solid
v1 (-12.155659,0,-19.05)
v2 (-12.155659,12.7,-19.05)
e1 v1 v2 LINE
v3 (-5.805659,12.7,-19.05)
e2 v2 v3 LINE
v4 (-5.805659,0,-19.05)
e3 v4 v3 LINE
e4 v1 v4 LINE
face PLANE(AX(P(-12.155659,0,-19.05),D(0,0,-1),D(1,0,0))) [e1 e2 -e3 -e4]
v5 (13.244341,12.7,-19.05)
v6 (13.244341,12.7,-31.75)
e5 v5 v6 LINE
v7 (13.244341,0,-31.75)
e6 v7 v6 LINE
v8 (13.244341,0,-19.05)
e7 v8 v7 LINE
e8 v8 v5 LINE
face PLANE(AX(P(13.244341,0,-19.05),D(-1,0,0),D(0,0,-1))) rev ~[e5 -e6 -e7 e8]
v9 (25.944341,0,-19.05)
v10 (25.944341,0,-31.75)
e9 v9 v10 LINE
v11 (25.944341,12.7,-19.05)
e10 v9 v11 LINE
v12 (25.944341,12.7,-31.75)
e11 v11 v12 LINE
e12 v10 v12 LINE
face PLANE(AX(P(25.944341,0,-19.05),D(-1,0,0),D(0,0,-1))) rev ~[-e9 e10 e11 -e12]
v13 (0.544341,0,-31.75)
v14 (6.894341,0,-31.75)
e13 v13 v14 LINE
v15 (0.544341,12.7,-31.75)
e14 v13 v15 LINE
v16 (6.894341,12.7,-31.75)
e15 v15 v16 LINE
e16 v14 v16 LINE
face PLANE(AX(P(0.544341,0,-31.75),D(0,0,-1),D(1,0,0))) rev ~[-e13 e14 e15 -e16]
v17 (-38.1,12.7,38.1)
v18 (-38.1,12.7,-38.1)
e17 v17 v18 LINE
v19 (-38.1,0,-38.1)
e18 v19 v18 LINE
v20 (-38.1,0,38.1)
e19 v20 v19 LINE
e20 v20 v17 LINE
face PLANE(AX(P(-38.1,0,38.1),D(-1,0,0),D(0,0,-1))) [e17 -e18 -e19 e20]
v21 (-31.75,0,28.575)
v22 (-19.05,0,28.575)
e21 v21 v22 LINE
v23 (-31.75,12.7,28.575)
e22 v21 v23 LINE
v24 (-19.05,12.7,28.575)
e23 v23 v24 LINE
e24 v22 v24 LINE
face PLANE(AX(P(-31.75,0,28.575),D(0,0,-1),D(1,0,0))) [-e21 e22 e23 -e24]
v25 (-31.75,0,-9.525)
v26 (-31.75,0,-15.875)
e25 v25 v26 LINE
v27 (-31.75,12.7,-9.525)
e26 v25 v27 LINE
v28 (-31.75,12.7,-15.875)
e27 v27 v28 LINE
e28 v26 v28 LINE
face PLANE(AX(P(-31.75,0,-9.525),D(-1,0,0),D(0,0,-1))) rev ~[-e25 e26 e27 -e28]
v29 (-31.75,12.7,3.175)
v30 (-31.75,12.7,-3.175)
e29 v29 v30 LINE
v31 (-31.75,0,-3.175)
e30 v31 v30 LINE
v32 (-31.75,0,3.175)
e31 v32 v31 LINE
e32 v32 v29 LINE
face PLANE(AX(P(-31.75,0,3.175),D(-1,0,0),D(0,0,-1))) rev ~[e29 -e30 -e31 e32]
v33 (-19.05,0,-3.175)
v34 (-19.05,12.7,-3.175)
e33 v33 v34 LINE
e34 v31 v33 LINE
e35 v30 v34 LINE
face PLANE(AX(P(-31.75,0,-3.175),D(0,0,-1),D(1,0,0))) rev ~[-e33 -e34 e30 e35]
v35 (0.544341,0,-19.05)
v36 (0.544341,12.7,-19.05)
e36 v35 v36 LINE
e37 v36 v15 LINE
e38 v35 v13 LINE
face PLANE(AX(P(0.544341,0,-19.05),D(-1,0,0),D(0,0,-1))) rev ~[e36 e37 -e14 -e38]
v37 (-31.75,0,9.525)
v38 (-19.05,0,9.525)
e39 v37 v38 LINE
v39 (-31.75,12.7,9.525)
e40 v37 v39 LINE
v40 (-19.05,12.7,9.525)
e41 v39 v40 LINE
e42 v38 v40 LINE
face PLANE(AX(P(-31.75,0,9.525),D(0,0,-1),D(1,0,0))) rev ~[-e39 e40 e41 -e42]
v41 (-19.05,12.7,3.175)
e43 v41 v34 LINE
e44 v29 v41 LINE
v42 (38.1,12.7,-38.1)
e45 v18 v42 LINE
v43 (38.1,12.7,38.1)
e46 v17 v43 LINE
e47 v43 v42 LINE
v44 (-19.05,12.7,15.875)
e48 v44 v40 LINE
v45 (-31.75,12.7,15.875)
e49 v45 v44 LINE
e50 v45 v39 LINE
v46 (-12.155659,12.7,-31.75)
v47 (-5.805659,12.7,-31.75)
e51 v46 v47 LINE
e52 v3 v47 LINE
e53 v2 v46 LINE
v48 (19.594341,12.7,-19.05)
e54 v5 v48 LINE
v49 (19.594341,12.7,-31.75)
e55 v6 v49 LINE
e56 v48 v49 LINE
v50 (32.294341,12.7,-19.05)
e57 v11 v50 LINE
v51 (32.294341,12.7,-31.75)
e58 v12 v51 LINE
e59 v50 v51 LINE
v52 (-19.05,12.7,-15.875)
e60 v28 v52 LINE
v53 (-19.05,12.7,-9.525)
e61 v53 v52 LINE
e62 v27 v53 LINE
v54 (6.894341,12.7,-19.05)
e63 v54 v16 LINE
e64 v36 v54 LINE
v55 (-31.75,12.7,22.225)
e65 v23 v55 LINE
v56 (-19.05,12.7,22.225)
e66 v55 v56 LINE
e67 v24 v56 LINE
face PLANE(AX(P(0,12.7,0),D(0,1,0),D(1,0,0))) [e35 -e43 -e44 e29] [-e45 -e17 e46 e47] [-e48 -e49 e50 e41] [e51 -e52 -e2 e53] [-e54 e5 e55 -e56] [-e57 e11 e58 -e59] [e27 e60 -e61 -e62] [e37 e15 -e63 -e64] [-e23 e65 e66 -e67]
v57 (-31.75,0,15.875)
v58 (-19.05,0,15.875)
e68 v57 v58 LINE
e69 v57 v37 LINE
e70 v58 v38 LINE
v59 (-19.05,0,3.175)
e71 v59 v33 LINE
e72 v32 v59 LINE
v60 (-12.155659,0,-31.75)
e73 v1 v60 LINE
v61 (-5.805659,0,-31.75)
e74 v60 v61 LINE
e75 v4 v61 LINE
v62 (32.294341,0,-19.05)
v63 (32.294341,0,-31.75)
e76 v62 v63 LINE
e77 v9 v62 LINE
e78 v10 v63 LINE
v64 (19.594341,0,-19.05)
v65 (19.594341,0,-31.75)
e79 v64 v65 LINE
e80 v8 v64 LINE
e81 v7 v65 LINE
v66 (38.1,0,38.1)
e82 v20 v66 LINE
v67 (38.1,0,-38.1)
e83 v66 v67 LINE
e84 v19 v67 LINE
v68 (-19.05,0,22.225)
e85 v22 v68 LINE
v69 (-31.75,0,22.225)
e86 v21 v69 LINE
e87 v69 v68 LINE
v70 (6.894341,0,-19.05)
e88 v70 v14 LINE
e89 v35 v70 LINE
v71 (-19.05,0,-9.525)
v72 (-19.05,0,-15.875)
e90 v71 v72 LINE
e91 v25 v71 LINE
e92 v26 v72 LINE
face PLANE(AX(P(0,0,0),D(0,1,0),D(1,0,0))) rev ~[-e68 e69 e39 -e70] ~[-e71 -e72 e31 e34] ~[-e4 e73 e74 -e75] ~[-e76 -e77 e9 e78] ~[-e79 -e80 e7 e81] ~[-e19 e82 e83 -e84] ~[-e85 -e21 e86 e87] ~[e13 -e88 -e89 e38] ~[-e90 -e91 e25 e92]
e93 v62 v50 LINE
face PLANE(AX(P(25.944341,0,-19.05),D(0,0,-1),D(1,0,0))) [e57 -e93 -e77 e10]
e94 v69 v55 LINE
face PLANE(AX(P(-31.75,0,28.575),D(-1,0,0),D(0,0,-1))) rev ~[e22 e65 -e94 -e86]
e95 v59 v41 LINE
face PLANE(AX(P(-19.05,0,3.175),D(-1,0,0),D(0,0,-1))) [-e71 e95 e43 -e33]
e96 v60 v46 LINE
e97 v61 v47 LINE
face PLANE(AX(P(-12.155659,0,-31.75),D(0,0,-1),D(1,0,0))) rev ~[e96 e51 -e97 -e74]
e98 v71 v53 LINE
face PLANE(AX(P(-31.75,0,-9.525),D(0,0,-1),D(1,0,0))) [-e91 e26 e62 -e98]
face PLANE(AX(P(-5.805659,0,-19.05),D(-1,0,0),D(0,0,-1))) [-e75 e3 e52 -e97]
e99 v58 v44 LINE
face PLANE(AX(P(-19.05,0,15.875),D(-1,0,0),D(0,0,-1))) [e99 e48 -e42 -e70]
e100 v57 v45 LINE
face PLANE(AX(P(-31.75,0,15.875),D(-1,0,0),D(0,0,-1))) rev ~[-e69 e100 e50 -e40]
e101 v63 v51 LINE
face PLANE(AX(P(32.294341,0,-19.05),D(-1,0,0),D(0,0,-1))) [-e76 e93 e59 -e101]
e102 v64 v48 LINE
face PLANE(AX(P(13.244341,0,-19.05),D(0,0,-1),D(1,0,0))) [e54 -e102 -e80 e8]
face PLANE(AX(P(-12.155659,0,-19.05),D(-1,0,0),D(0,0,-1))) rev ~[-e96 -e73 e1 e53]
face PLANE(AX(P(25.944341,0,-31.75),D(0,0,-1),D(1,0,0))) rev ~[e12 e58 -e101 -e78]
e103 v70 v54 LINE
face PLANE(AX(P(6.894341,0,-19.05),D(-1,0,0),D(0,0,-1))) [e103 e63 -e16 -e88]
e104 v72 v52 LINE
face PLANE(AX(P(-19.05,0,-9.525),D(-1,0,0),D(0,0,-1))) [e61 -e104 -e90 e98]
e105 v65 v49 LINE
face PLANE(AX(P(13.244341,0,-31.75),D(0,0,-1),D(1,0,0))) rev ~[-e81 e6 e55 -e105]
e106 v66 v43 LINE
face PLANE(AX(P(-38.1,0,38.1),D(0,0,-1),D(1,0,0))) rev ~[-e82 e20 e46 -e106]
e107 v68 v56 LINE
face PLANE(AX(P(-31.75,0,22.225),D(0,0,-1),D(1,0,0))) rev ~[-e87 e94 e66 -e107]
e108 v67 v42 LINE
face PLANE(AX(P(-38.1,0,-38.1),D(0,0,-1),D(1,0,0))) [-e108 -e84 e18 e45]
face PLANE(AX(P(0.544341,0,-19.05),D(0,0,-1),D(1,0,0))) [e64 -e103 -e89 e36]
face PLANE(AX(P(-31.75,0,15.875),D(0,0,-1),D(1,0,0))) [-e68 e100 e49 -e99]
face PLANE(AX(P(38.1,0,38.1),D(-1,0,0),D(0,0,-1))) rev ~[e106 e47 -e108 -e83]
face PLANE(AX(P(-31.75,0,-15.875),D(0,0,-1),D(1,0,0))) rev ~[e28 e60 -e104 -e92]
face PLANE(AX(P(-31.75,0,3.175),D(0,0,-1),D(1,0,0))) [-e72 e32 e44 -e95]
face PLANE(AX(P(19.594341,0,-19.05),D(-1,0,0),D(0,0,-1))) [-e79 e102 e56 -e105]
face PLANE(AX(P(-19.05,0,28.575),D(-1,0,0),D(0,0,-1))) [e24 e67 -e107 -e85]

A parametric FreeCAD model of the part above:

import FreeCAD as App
import Part
import Sketcher
Q = App.Units.Quantity

doc = App.newDocument("Part")
body = doc.addObject("PartDesign::Body", "Body")

sketch1 = doc.addObject("Sketcher::SketchObject", "Sketch")
body.addObject(sketch1)
sketch1.AttachmentSupport = (doc.XZ_Plane, [""])
sketch1.MapMode = "FlatFace"
sketch1.addGeometry([
    Part.LineSegment(App.Vector(-38, -38, 0), App.Vector(-38, 38, 0)),
    Part.LineSegment(App.Vector(-38, 38, 0), App.Vector(38, 38, 0)),
    Part.LineSegment(App.Vector(38, 38, 0), App.Vector(38, -38, 0)),
    Part.LineSegment(App.Vector(38, -38, 0), App.Vector(-38, -38, 0)),
    Part.LineSegment(App.Vector(-19, 29, 0), App.Vector(-32, 29, 0)),
    Part.LineSegment(App.Vector(-32, 29, 0), App.Vector(-32, 22, 0)),
    Part.LineSegment(App.Vector(-32, 22, 0), App.Vector(-19, 22, 0)),
    Part.LineSegment(App.Vector(-19, 22, 0), App.Vector(-19, 29, 0)),
    Part.LineSegment(App.Vector(-19, 16, 0), App.Vector(-32, 16, 0)),
    Part.LineSegment(App.Vector(-32, 16, 0), App.Vector(-32, 10, 0)),
    Part.LineSegment(App.Vector(-32, 10, 0), App.Vector(-19, 10, 0)),
    Part.LineSegment(App.Vector(-19, 10, 0), App.Vector(-19, 16, 0)),
    Part.LineSegment(App.Vector(-19, 3, 0), App.Vector(-32, 3, 0)),
    Part.LineSegment(App.Vector(-32, 3, 0), App.Vector(-32, -3, 0)),
    Part.LineSegment(App.Vector(-32, -3, 0), App.Vector(-19, -3, 0)),
    Part.LineSegment(App.Vector(-19, -3, 0), App.Vector(-19, 3, 0)),
    Part.LineSegment(App.Vector(-19, -10, 0), App.Vector(-32, -10, 0)),
    Part.LineSegment(App.Vector(-32, -10, 0), App.Vector(-32, -16, 0)),
    Part.LineSegment(App.Vector(-32, -16, 0), App.Vector(-19, -16, 0)),
    Part.LineSegment(App.Vector(-19, -16, 0), App.Vector(-19, -10, 0)),
    Part.LineSegment(App.Vector(-6, -19, 0), App.Vector(-12, -19, 0)),
    Part.LineSegment(App.Vector(-12, -19, 0), App.Vector(-12, -32, 0)),
    Part.LineSegment(App.Vector(-12, -32, 0), App.Vector(-6, -32, 0)),
    Part.LineSegment(App.Vector(-6, -32, 0), App.Vector(-6, -19, 0)),
    Part.LineSegment(App.Vector(7, -19, 0), App.Vector(1, -19, 0)),
    Part.LineSegment(App.Vector(1, -19, 0), App.Vector(1, -32, 0)),
    Part.LineSegment(App.Vector(1, -32, 0), App.Vector(7, -32, 0)),
    Part.LineSegment(App.Vector(7, -32, 0), App.Vector(7, -19, 0)),
    Part.LineSegment(App.Vector(20, -19, 0), App.Vector(13, -19, 0)),
    Part.LineSegment(App.Vector(13, -19, 0), App.Vector(13, -32, 0)),
    Part.LineSegment(App.Vector(13, -32, 0), App.Vector(20, -32, 0)),
    Part.LineSegment(App.Vector(20, -32, 0), App.Vector(20, -19, 0)),
    Part.LineSegment(App.Vector(32, -19, 0), App.Vector(26, -19, 0)),
    Part.LineSegment(App.Vector(26, -19, 0), App.Vector(26, -32, 0)),
    Part.LineSegment(App.Vector(26, -32, 0), App.Vector(32, -32, 0)),
    Part.LineSegment(App.Vector(32, -32, 0), App.Vector(32, -19, 0)),
], False)
sketch1.addConstraint([
    Sketcher.Constraint("Coincident", 0, 2, 1, 1),
    Sketcher.Constraint("Coincident", 1, 2, 2, 1),
    Sketcher.Constraint("Coincident", 2, 2, 3, 1),
    Sketcher.Constraint("Coincident", 3, 2, 0, 1),
    Sketcher.Constraint("Coincident", 4, 2, 5, 1),
    Sketcher.Constraint("Coincident", 5, 2, 6, 1),
    Sketcher.Constraint("Coincident", 6, 2, 7, 1),
    Sketcher.Constraint("Coincident", 7, 2, 4, 1),
    Sketcher.Constraint("Coincident", 8, 2, 9, 1),
    Sketcher.Constraint("Coincident", 9, 2, 10, 1),
    Sketcher.Constraint("Coincident", 10, 2, 11, 1),
    Sketcher.Constraint("Coincident", 11, 2, 8, 1),
    Sketcher.Constraint("Coincident", 12, 2, 13, 1),
    Sketcher.Constraint("Coincident", 13, 2, 14, 1),
    Sketcher.Constraint("Coincident", 14, 2, 15, 1),
    Sketcher.Constraint("Coincident", 15, 2, 12, 1),
    Sketcher.Constraint("Coincident", 16, 2, 17, 1),
    Sketcher.Constraint("Coincident", 17, 2, 18, 1),
    Sketcher.Constraint("Coincident", 18, 2, 19, 1),
    Sketcher.Constraint("Coincident", 19, 2, 16, 1),
    Sketcher.Constraint("Coincident", 20, 2, 21, 1),
    Sketcher.Constraint("Coincident", 21, 2, 22, 1),
    Sketcher.Constraint("Coincident", 22, 2, 23, 1),
    Sketcher.Constraint("Coincident", 23, 2, 20, 1),
    Sketcher.Constraint("Coincident", 24, 2, 25, 1),
    Sketcher.Constraint("Coincident", 25, 2, 26, 1),
    Sketcher.Constraint("Coincident", 26, 2, 27, 1),
    Sketcher.Constraint("Coincident", 27, 2, 24, 1),
    Sketcher.Constraint("Coincident", 28, 2, 29, 1),
    Sketcher.Constraint("Coincident", 29, 2, 30, 1),
    Sketcher.Constraint("Coincident", 30, 2, 31, 1),
    Sketcher.Constraint("Coincident", 31, 2, 28, 1),
    Sketcher.Constraint("Coincident", 32, 2, 33, 1),
    Sketcher.Constraint("Coincident", 33, 2, 34, 1),
    Sketcher.Constraint("Coincident", 34, 2, 35, 1),
    Sketcher.Constraint("Coincident", 35, 2, 32, 1),
    Sketcher.Constraint("Vertical", 0),
    Sketcher.Constraint("Horizontal", 1),
    Sketcher.Constraint("Vertical", 2),
    Sketcher.Constraint("Horizontal", 3),
    Sketcher.Constraint("Horizontal", 4),
    Sketcher.Constraint("Vertical", 5),
    Sketcher.Constraint("Horizontal", 6),
    Sketcher.Constraint("Vertical", 7),
    Sketcher.Constraint("Horizontal", 8),
    Sketcher.Constraint("Vertical", 9),
    Sketcher.Constraint("Horizontal", 10),
    Sketcher.Constraint("Vertical", 11),
    Sketcher.Constraint("Horizontal", 12),
    Sketcher.Constraint("Vertical", 13),
    Sketcher.Constraint("Horizontal", 14),
    Sketcher.Constraint("Vertical", 15),
    Sketcher.Constraint("Horizontal", 16),
    Sketcher.Constraint("Vertical", 17),
    Sketcher.Constraint("Horizontal", 18),
    Sketcher.Constraint("Vertical", 19),
    Sketcher.Constraint("Horizontal", 20),
    Sketcher.Constraint("Vertical", 21),
    Sketcher.Constraint("Horizontal", 22),
    Sketcher.Constraint("Vertical", 23),
    Sketcher.Constraint("Horizontal", 24),
    Sketcher.Constraint("Vertical", 25),
    Sketcher.Constraint("Horizontal", 26),
    Sketcher.Constraint("Vertical", 27),
    Sketcher.Constraint("Horizontal", 28),
    Sketcher.Constraint("Vertical", 29),
    Sketcher.Constraint("Horizontal", 30),
    Sketcher.Constraint("Vertical", 31),
    Sketcher.Constraint("Horizontal", 32),
    Sketcher.Constraint("Vertical", 33),
    Sketcher.Constraint("Horizontal", 34),
    Sketcher.Constraint("Vertical", 35),
    Sketcher.Constraint("Symmetric", 0, 2, 2, 2, -1, 1),
    Sketcher.Constraint("Symmetric", 9, 2, 16, 2, -1),
    Sketcher.Constraint("Symmetric", 11, 2, 18, 2, -1),
    Sketcher.Constraint("Horizontal", 23, 2, 24, 2),
    Sketcher.Constraint("Horizontal", 22, 2, 25, 2),
    Sketcher.Constraint("Horizontal", 27, 2, 28, 2),
    Sketcher.Constraint("Horizontal", 26, 2, 29, 2),
    Sketcher.Constraint("Horizontal", 31, 2, 32, 2),
    Sketcher.Constraint("Horizontal", 30, 2, 33, 2),
    Sketcher.Constraint("Vertical", 5, 2, 8, 2),
    Sketcher.Constraint("Vertical", 7, 2, 10, 2),
    Sketcher.Constraint("Vertical", 9, 2, 12, 2),
    Sketcher.Constraint("Vertical", 11, 2, 14, 2),
    Sketcher.Constraint("Equal", 22, 24),
    Sketcher.Constraint("Equal", 26, 28),
    Sketcher.Constraint("Equal", 30, 32),
    Sketcher.Constraint("Equal", 3, 0),
    Sketcher.Constraint("Equal", 34, 5),
    Sketcher.Constraint("Equal", 7, 9),
    Sketcher.Constraint("Equal", 11, 13),
    Sketcher.Constraint("Equal", 18, 21),
    Sketcher.Constraint("DistanceX", 1, 1, 1, 2, Q("3 in")),
    Sketcher.Constraint("DistanceX", 4, 2, 4, 1, Q("0.5 in")),
    Sketcher.Constraint("DistanceX", 20, 2, 20, 1, Q("0.25 in")),
    Sketcher.Constraint("DistanceY", 8, 2, 4, 2, Q("0.5 in")),
    Sketcher.Constraint("DistanceY", 12, 2, 8, 2, Q("0.5 in")),
    Sketcher.Constraint("DistanceY", 16, 2, 12, 2, Q("0.5 in")),
    Sketcher.Constraint("DistanceX", 20, 2, 24, 2, Q("0.5 in")),
    Sketcher.Constraint("DistanceX", 24, 2, 28, 2, Q("0.5 in")),
    Sketcher.Constraint("DistanceX", 28, 2, 32, 2, Q("0.5 in")),
    Sketcher.Constraint("DistanceX", 4, 2, -1, 1, Q("1.25 in")),
    Sketcher.Constraint("DistanceY", 20, 2, -1, 1, Q("0.75 in")),
    Sketcher.Constraint("DistanceX", 20, 2, -1, 1, 12.155659),
])
pad1 = doc.addObject("PartDesign::Pad", "Pad")
body.addObject(pad1)
pad1.Profile = sketch1
pad1.Length = Q("0.5 in")
pad1.Reversed = True

doc.recompute()
